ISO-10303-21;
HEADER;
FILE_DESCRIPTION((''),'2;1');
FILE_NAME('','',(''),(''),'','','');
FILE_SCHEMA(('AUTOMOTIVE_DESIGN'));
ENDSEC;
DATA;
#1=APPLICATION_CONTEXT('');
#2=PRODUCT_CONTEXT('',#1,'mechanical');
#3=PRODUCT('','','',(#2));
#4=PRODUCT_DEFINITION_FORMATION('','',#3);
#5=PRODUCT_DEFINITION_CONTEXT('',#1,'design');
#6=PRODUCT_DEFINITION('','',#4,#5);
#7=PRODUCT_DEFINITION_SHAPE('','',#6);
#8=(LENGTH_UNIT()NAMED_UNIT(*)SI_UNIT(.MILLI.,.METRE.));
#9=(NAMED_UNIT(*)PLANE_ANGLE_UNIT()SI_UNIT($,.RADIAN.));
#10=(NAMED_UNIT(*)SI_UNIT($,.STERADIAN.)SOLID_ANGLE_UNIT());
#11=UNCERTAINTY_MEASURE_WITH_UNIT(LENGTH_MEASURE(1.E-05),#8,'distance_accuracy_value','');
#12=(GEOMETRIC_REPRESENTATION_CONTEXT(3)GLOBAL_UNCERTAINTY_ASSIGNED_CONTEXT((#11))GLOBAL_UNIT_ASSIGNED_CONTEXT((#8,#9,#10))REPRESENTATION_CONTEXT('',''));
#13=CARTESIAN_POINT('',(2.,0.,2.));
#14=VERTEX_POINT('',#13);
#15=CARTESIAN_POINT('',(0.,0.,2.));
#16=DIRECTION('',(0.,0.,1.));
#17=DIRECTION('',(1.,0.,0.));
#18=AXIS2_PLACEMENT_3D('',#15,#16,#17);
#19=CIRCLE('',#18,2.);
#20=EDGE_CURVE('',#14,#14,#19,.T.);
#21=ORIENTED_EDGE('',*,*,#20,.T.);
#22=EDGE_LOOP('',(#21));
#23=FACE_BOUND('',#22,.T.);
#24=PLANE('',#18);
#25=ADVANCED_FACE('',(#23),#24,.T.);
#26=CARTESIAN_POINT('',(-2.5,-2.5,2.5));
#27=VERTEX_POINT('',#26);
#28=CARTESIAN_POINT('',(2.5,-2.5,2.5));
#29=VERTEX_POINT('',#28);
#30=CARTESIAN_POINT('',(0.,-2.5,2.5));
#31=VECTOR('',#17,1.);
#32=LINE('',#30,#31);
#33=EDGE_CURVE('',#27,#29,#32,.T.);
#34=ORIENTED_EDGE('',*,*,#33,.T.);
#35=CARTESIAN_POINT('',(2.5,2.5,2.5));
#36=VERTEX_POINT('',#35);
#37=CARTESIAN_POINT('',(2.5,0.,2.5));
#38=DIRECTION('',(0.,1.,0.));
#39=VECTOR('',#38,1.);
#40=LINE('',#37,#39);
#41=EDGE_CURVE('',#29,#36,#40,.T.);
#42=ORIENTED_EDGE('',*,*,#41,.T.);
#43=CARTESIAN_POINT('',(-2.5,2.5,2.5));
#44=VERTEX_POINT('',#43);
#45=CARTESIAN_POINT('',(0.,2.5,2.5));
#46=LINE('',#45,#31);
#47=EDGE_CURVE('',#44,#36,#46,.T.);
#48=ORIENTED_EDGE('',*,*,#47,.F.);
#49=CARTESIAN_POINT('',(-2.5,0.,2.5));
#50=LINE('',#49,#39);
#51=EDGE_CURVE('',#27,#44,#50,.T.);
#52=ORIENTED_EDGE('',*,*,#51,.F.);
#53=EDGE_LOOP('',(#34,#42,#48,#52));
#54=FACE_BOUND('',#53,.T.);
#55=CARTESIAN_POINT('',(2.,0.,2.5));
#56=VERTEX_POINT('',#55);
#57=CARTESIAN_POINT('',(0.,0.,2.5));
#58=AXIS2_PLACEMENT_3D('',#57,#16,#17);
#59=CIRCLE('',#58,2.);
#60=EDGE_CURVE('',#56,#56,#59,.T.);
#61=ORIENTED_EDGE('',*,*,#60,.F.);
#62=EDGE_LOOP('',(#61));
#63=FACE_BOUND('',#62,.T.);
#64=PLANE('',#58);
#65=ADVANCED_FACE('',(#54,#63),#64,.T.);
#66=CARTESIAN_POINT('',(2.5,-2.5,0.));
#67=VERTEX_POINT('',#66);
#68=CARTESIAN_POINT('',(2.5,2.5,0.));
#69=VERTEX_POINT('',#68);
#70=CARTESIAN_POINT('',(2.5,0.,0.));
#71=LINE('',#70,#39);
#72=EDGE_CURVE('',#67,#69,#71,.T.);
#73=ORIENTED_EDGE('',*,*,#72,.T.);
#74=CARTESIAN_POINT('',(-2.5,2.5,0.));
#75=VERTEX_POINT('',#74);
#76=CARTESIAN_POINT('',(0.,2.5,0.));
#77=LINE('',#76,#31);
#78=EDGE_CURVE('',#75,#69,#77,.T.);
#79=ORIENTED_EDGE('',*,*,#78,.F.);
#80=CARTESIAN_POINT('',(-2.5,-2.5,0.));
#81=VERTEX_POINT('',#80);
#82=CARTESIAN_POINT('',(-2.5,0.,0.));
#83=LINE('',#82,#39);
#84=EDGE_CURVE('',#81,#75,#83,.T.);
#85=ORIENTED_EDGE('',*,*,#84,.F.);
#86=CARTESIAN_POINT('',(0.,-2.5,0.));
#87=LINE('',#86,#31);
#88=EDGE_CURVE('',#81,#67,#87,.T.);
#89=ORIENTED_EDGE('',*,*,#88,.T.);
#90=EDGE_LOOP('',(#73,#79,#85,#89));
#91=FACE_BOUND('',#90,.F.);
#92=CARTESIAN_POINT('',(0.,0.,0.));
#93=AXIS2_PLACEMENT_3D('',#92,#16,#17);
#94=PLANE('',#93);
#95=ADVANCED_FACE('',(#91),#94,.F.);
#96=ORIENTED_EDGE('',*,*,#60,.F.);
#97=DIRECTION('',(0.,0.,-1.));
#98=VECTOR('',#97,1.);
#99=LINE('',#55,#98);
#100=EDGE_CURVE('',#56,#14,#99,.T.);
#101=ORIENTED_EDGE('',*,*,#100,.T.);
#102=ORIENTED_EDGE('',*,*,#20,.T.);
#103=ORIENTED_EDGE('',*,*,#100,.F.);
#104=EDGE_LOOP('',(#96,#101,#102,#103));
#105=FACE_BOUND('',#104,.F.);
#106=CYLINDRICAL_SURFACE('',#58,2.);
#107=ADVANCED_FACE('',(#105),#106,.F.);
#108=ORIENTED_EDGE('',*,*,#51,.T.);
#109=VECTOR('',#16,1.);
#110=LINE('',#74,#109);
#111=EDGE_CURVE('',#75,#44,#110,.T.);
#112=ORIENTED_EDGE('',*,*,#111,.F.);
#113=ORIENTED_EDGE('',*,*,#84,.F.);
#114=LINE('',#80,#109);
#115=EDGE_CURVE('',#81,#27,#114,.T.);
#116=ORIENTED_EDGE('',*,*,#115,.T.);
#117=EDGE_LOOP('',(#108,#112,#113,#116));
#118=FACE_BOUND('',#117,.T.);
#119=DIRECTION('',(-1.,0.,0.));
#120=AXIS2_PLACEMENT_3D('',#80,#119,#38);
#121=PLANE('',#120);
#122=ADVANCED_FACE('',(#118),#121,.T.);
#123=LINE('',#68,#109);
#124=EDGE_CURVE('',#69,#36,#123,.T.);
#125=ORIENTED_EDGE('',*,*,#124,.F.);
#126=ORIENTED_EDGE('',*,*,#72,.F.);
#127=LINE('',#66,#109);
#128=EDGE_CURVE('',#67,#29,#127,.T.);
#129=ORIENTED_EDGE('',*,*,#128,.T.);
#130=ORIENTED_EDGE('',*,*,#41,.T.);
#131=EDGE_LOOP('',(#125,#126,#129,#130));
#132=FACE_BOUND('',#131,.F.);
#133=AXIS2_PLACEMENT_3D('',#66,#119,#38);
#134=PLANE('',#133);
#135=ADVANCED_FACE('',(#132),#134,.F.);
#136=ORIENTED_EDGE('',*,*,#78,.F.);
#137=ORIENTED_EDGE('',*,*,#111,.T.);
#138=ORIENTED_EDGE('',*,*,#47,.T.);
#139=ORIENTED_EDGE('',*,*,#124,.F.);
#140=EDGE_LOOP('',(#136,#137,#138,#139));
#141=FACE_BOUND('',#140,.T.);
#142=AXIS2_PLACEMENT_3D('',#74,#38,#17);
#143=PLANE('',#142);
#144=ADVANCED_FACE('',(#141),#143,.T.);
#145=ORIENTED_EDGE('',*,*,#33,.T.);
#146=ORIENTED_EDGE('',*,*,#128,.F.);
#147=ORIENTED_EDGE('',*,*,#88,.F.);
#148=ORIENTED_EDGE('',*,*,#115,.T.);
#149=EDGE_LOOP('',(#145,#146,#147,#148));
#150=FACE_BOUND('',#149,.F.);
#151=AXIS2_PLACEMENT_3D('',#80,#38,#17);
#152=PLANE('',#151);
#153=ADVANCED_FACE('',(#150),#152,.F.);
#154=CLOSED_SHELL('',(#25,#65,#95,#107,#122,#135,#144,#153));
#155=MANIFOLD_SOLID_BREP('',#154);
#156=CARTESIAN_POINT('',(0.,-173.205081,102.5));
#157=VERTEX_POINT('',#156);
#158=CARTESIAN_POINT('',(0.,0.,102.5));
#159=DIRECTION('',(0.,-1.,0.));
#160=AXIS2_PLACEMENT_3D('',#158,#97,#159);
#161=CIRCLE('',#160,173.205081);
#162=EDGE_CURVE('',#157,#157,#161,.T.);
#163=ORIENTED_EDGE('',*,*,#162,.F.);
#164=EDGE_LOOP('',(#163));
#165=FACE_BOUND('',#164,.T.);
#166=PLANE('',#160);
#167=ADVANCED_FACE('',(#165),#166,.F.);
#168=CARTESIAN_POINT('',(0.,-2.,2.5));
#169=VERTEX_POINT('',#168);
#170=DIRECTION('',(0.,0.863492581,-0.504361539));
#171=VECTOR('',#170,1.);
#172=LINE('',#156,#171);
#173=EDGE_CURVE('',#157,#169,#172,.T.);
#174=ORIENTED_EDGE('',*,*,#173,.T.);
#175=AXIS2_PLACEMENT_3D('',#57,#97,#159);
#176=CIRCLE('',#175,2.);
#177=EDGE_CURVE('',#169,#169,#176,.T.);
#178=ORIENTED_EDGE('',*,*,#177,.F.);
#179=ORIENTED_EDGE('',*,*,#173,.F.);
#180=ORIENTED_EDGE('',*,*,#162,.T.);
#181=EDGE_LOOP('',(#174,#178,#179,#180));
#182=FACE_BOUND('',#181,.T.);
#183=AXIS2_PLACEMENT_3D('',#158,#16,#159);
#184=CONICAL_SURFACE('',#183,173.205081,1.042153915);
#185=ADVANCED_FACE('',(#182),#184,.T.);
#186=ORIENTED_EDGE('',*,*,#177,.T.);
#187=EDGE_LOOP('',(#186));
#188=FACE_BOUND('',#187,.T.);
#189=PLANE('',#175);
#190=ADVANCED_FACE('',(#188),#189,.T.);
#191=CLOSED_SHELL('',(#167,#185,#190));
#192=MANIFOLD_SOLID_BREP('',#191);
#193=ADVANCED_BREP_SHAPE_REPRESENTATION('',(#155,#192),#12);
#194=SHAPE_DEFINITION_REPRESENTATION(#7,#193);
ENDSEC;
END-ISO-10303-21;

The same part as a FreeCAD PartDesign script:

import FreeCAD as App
import Part
import Sketcher

doc = App.newDocument("Part")
params = doc.addObject("Spreadsheet::Sheet", "Params")
for row, (alias, value) in enumerate([
    ("sketch1_width", "5 mm"),
    ("pad1_length", "2.5 mm"),
    ("sketch2_diameter", "4 mm"),
    ("pocket1_length", "0.5 mm"),
    ("sketch3_width", "2 mm"),
    ("sketch3_height", "100 mm"),
    ("revolution_angle", "360 deg"),
], start=1):
    params.set(f"A{row}", alias)
    params.set(f"B{row}", "=" + value)
    params.setAlias(f"B{row}", alias)

body = doc.addObject("PartDesign::Body", "Body")

# Sketch on XY plane
sketch1 = body.newObject("Sketcher::SketchObject", "Sketch")
sketch1.AttachmentSupport = (doc.getObject("XY_Plane"), [""])
sketch1.MapMode = "FlatFace"
sketch1.addGeometry([
    Part.LineSegment(App.Vector(-2.5, 2.5, 0), App.Vector(-2.5, -2.5, 0)),
    Part.LineSegment(App.Vector(-2.5, -2.5, 0), App.Vector(2.5, -2.5, 0)),
    Part.LineSegment(App.Vector(2.5, -2.5, 0), App.Vector(2.5, 2.5, 0)),
    Part.LineSegment(App.Vector(2.5, 2.5, 0), App.Vector(-2.5, 2.5, 0)),
], False)
sketch1.addConstraint([
    Sketcher.Constraint("Coincident", 0, 2, 1, 1),
    Sketcher.Constraint("Coincident", 1, 2, 2, 1),
    Sketcher.Constraint("Coincident", 2, 2, 3, 1),
    Sketcher.Constraint("Coincident", 3, 2, 0, 1),
    Sketcher.Constraint("Vertical", 0),
    Sketcher.Constraint("Horizontal", 1),
    Sketcher.Constraint("Vertical", 2),
    Sketcher.Constraint("Horizontal", 3),
    Sketcher.Constraint("Symmetric", 0, 2, 2, 2, -1, 1),
    Sketcher.Constraint("Equal", 3, 0),
    Sketcher.Constraint("DistanceX", 1, 1, 1, 2, 5.0),
])
sketch1.setExpression("Constraints[10]", "Params.sketch1_width")
pad1 = body.newObject("PartDesign::Pad", "Pad")
pad1.Profile = sketch1
pad1.setExpression("Length", "Params.pad1_length")

# Sketch on XY plane
sketch2 = body.newObject("Sketcher::SketchObject", "Sketch001")
sketch2.AttachmentSupport = (doc.getObject("XY_Plane"), [""])
sketch2.MapMode = "FlatFace"
sketch2.AttachmentOffset = App.Placement(App.Vector(0, 0, 2.5), App.Rotation())
sketch2.addGeometry(Part.Circle(App.Vector(0, 0, 0), App.Vector(0, 0, 1), 2), False)
sketch2.addConstraint([
    Sketcher.Constraint("Coincident", 0, 3, -1, 1),
    Sketcher.Constraint("Diameter", 0, 4.0),
])
sketch2.setExpression("Constraints[1]", "Params.sketch2_diameter")
pocket1 = body.newObject("PartDesign::Pocket", "Pocket")
pocket1.Profile = sketch2
pocket1.setExpression("Length", "Params.pocket1_length")
body2 = doc.addObject("PartDesign::Body", "Body001")

# Sketch on YZ plane
sketch3 = body2.newObject("Sketcher::SketchObject", "Sketch002")
sketch3.AttachmentSupport = (doc.getObject("YZ_Plane001"), [""])
sketch3.MapMode = "FlatFace"
sketch3.addGeometry([
    Part.LineSegment(App.Vector(-173.205081, 102.5, 0), App.Vector(-2, 2.5, 0)),
    Part.LineSegment(App.Vector(-2, 2.5, 0), App.Vector(0, 2.5, 0)),
    Part.LineSegment(App.Vector(0, 2.5, 0), App.Vector(0, 102.5, 0)),
    Part.LineSegment(App.Vector(0, 102.5, 0), App.Vector(-173.205081, 102.5, 0)),
], False)
sketch3.addConstraint([
    Sketcher.Constraint("Coincident", 0, 2, 1, 1),
    Sketcher.Constraint("Coincident", 1, 2, 2, 1),
    Sketcher.Constraint("Coincident", 2, 2, 3, 1),
    Sketcher.Constraint("Coincident", 3, 2, 0, 1),
    Sketcher.Constraint("Horizontal", 1),
    Sketcher.Constraint("Vertical", 2),
    Sketcher.Constraint("Horizontal", 3),
    Sketcher.Constraint("PointOnObject", 1, 2, -2),
    Sketcher.Constraint("DistanceX", 1, 1, 1, 2, 2.0),
    Sketcher.Constraint("DistanceY", 2, 1, 2, 2, 100.0),
    Sketcher.Constraint("DistanceY", -1, 1, 0, 2, 2.5),
    Sketcher.Constraint("DistanceX", 3, 2, 3, 1, 173.205081),
])
sketch3.setExpression("Constraints[8]", "Params.sketch3_width")
sketch3.setExpression("Constraints[9]", "Params.sketch3_height")
revolution = body2.newObject("PartDesign::Revolution", "Revolution")
revolution.Profile = sketch3
revolution.ReferenceAxis = (sketch3, ["V_Axis"])
revolution.setExpression("Angle", "Params.revolution_angle")

doc.recompute()
